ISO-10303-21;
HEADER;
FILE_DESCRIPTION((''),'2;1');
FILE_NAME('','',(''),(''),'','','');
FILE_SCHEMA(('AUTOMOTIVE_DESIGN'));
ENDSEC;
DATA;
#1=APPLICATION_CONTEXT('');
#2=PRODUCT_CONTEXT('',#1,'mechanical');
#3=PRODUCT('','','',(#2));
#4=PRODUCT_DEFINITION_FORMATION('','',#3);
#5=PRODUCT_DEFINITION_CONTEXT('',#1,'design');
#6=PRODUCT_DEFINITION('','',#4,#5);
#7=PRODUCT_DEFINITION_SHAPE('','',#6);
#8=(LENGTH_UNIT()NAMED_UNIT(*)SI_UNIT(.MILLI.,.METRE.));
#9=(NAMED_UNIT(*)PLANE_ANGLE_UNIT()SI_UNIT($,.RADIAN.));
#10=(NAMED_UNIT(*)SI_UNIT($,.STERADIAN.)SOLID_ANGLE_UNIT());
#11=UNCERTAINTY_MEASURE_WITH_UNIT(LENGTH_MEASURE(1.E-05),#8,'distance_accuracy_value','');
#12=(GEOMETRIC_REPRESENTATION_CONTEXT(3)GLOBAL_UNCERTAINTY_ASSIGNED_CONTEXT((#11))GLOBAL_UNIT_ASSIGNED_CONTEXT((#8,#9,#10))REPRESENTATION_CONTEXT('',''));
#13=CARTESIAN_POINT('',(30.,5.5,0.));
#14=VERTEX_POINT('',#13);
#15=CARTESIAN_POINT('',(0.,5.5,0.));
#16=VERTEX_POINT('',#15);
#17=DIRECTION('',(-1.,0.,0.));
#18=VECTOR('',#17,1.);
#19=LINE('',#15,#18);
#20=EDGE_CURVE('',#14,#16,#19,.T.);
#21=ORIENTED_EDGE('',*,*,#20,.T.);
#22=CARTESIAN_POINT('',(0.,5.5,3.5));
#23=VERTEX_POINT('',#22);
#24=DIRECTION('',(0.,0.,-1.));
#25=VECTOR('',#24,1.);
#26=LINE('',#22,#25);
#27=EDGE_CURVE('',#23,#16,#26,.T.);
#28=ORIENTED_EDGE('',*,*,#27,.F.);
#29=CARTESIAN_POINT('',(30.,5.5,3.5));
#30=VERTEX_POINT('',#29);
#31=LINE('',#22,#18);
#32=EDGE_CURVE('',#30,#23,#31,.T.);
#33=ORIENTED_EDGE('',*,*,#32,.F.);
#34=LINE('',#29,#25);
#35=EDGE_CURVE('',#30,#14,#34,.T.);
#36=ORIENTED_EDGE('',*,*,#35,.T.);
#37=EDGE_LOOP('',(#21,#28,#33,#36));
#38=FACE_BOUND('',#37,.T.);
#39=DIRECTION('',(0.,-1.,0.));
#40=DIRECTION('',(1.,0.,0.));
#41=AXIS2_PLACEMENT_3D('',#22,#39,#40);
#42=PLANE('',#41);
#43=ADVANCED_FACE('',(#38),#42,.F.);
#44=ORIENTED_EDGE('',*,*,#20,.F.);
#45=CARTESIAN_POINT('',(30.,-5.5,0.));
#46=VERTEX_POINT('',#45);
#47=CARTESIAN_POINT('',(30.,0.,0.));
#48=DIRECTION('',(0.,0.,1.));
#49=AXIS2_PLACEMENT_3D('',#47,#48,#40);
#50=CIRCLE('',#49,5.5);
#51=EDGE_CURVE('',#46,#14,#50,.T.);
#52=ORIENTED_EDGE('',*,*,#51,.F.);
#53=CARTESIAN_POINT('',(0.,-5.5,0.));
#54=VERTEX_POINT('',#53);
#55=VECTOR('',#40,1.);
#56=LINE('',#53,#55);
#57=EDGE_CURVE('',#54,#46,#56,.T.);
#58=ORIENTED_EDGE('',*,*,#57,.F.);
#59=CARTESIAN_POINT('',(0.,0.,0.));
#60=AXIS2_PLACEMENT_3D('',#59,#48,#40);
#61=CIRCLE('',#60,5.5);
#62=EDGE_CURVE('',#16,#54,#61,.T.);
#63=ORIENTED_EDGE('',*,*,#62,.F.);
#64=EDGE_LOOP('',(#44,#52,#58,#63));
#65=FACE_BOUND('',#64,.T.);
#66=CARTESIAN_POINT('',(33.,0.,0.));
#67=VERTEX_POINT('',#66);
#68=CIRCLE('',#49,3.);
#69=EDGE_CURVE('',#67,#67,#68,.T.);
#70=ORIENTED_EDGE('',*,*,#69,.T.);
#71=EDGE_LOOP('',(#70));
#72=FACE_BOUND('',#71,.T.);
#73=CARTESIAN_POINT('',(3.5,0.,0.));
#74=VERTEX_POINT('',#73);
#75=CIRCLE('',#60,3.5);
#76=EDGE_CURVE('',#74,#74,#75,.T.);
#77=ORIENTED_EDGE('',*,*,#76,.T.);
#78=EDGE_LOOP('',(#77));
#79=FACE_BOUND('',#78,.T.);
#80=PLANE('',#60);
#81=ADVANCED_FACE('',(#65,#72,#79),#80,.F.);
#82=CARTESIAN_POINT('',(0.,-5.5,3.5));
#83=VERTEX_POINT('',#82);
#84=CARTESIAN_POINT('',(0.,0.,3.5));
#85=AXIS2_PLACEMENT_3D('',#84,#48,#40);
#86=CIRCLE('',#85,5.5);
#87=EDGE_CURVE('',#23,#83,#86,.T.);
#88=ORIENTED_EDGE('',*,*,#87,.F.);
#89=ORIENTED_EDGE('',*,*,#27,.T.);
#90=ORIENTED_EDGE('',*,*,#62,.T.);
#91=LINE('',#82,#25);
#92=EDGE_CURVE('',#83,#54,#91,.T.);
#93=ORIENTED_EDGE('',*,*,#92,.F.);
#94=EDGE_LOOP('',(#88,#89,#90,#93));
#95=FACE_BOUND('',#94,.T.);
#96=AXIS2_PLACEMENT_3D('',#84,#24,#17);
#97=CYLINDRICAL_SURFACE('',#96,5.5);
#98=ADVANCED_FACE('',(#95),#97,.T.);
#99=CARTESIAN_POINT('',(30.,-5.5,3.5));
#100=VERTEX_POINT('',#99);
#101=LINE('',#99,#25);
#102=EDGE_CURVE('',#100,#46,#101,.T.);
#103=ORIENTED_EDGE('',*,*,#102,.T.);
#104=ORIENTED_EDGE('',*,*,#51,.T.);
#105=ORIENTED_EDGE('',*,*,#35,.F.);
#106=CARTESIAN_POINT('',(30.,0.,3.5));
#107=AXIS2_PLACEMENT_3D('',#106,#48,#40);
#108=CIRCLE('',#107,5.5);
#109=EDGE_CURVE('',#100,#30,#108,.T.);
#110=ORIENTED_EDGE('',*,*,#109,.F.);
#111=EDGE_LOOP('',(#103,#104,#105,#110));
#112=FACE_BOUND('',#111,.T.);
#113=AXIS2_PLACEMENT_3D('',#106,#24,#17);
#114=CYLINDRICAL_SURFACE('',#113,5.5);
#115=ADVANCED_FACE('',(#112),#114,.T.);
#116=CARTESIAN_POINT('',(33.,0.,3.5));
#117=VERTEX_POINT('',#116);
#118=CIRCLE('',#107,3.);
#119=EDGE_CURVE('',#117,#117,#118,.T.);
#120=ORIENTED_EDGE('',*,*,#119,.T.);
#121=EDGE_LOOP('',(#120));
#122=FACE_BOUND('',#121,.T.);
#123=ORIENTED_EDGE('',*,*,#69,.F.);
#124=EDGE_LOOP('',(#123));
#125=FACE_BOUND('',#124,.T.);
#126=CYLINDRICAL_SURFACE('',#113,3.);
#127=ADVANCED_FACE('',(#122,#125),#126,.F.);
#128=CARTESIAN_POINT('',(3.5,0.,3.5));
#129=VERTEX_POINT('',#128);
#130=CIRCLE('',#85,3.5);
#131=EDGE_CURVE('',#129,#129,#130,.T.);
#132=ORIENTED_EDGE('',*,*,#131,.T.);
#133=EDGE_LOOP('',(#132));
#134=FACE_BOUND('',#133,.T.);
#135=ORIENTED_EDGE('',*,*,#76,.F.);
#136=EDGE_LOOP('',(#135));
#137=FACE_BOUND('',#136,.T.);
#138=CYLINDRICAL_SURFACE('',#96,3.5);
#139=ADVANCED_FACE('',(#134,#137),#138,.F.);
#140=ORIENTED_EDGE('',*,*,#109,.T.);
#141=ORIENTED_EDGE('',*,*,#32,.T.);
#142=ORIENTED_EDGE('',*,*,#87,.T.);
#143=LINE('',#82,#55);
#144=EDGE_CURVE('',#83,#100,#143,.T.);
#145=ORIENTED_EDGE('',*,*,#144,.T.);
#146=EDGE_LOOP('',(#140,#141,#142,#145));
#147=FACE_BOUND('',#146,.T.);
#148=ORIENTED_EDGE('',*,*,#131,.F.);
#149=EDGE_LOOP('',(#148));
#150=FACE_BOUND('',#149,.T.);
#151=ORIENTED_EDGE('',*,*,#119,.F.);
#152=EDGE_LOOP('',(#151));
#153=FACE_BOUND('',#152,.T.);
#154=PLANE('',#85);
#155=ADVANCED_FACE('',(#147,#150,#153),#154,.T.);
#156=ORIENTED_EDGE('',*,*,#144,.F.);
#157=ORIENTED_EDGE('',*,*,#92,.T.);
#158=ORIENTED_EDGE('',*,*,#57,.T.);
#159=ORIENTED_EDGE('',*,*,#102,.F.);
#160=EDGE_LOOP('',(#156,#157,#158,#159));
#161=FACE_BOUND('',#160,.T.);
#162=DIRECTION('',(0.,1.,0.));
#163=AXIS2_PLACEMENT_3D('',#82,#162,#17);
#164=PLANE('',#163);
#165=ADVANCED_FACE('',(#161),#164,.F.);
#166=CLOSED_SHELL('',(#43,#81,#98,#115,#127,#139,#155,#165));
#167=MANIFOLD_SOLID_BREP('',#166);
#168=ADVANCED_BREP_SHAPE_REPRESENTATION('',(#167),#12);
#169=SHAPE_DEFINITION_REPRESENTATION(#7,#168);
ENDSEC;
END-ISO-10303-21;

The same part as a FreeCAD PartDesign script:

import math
import FreeCAD as App
import Part
import Sketcher

doc = App.newDocument("Part")
body = doc.addObject("PartDesign::Body", "Body")

sketch1 = body.newObject("Sketcher::SketchObject", "Sketch")
sketch1.AttachmentSupport = (doc.getObject("XY_Plane"), [""])
sketch1.MapMode = "FlatFace"
sketch1.addGeometry([
    Part.LineSegment(App.Vector(30, 5.5, 0), App.Vector(0, 5.5, 0)),
    Part.ArcOfCircle(Part.Circle(App.Vector(0, 0, 0), App.Vector(0, 0, 1), 5.5), math.radians(90), math.radians(270)),
    Part.LineSegment(App.Vector(0, -5.5, 0), App.Vector(30, -5.5, 0)),
    Part.ArcOfCircle(Part.Circle(App.Vector(30, 0, 0), App.Vector(0, 0, 1), 5.5), math.radians(-90), math.radians(90)),
    Part.Circle(App.Vector(30, 0, 0), App.Vector(0, 0, 1), 3),
    Part.Circle(App.Vector(0, 0, 0), App.Vector(0, 0, 1), 3.5),
], False)
sketch1.addConstraint([
    Sketcher.Constraint("Tangent", 0, 2, 1, 1),
    Sketcher.Constraint("Tangent", 1, 2, 2, 1),
    Sketcher.Constraint("Tangent", 2, 2, 3, 1),
    Sketcher.Constraint("Tangent", 3, 2, 0, 1),
    Sketcher.Constraint("Horizontal", 0),
    Sketcher.Constraint("Horizontal", 2),
    Sketcher.Constraint("Coincident", 1, 3, -1, 1),
    Sketcher.Constraint("Coincident", 5, 3, -1, 1),
    Sketcher.Constraint("Coincident", 4, 3, 3, 3),
    Sketcher.Constraint("Diameter", 4, 6.0),
    Sketcher.Constraint("Diameter", 5, 7.0),
    Sketcher.Constraint("Radius", 1, 5.5),
    Sketcher.Constraint("DistanceX", 0, 2, 0, 1, 30.0),
])
pad1 = body.newObject("PartDesign::Pad", "Pad")
pad1.Profile = sketch1
pad1.Length = 3.5

doc.recompute()
